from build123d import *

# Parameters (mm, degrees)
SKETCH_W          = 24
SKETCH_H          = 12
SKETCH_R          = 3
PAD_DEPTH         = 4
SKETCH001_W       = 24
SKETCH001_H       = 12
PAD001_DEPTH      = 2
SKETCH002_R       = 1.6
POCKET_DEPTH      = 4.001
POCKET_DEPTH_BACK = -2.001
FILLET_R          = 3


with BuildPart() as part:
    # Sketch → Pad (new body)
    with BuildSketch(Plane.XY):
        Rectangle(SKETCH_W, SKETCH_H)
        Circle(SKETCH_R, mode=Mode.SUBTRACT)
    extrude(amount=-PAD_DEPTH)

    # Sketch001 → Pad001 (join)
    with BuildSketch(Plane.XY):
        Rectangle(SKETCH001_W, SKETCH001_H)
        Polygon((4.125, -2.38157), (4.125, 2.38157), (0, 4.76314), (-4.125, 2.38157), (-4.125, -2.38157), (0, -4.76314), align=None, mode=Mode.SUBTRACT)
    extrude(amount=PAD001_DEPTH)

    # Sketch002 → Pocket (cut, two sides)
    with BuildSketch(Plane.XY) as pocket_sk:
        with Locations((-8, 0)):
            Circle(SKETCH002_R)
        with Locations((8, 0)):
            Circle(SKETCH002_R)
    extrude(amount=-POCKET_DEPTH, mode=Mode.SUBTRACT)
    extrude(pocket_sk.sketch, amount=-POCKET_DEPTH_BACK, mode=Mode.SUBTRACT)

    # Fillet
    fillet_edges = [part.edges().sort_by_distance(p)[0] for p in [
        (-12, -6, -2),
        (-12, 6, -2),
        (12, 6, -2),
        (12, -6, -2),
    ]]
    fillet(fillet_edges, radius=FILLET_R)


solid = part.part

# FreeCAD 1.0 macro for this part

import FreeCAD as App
import Part
import Sketcher
from FreeCAD import Vector
Q = App.Units.Quantity


def edges_at(feature, points):
    """Names of the edges that pass closest to the given points."""
    edges = feature.Shape.Edges
    near = lambda p: min(range(len(edges)), key=lambda i: edges[i].distToShape(Part.Vertex(*p))[0])
    return sorted({f"Edge{near(p) + 1}" for p in points})

doc = App.newDocument("Part")
body = doc.addObject("PartDesign::Body", "Body")

sketch1 = body.newObject("Sketcher::SketchObject", "Sketch")
sketch1.AttachmentSupport = (doc.getObject("XY_Plane"), [""])
sketch1.MapMode = "FlatFace"
sketch1.addGeometry(Part.LineSegment(Vector(-12, 6, 0), Vector(-12, -6, 0)), False)
sketch1.addGeometry(Part.LineSegment(Vector(-12, -6, 0), Vector(12, -6, 0)), False)
sketch1.addGeometry(Part.LineSegment(Vector(12, -6, 0), Vector(12, 6, 0)), False)
sketch1.addGeometry(Part.LineSegment(Vector(12, 6, 0), Vector(-12, 6, 0)), False)
sketch1.addGeometry(Part.Circle(Vector(0, 0, 0), Vector(0, 0, 1), 3), False)
sketch1.addConstraint(Sketcher.Constraint("Coincident", 0, 2, 1, 1))
sketch1.addConstraint(Sketcher.Constraint("Coincident", 1, 2, 2, 1))
sketch1.addConstraint(Sketcher.Constraint("Coincident", 2, 2, 3, 1))
sketch1.addConstraint(Sketcher.Constraint("Coincident", 3, 2, 0, 1))
sketch1.addConstraint(Sketcher.Constraint("Vertical", 0))
sketch1.addConstraint(Sketcher.Constraint("Horizontal", 1))
sketch1.addConstraint(Sketcher.Constraint("Vertical", 2))
sketch1.addConstraint(Sketcher.Constraint("Horizontal", 3))
sketch1.addConstraint(Sketcher.Constraint("Coincident", 4, 3, -1, 1))
sketch1.addConstraint(Sketcher.Constraint("Symmetric", 0, 2, 2, 2, -1, 1))
sketch1.addConstraint(Sketcher.Constraint("Diameter", 4, Q("6 mm")))
sketch1.addConstraint(Sketcher.Constraint("DistanceX", 1, 1, 1, 2, Q("24 mm")))
sketch1.addConstraint(Sketcher.Constraint("DistanceY", 0, 2, 0, 1, Q("12 mm")))
pad1 = body.newObject("PartDesign::Pad", "Pad")
pad1.Profile = sketch1
pad1.Length = 4
pad1.Reversed = True

sketch2 = body.newObject("Sketcher::SketchObject", "Sketch001")
sketch2.AttachmentSupport = (doc.getObject("XY_Plane"), [""])
sketch2.MapMode = "FlatFace"
sketch2.addGeometry(Part.LineSegment(Vector(-12, 6, 0), Vector(-12, -6, 0)), False)
sketch2.addGeometry(Part.LineSegment(Vector(-12, -6, 0), Vector(12, -6, 0)), False)
sketch2.addGeometry(Part.LineSegment(Vector(12, -6, 0), Vector(12, 6, 0)), False)
sketch2.addGeometry(Part.LineSegment(Vector(12, 6, 0), Vector(-12, 6, 0)), False)
sketch2.addGeometry(Part.LineSegment(Vector(4.1, 2.4, 0), Vector(4.1, -2.4, 0)), False)
sketch2.addGeometry(Part.LineSegment(Vector(4.1, -2.4, 0), Vector(0, -4.8, 0)), False)
sketch2.addGeometry(Part.LineSegment(Vector(0, -4.8, 0), Vector(-4.1, -2.4, 0)), False)
sketch2.addGeometry(Part.LineSegment(Vector(-4.1, -2.4, 0), Vector(-4.1, 2.4, 0)), False)
sketch2.addGeometry(Part.LineSegment(Vector(-4.1, 2.4, 0), Vector(0, 4.8, 0)), False)
sketch2.addGeometry(Part.LineSegment(Vector(0, 4.8, 0), Vector(4.1, 2.4, 0)), False)
sketch2.addConstraint(Sketcher.Constraint("Coincident", 0, 2, 1, 1))
sketch2.addConstraint(Sketcher.Constraint("Coincident", 1, 2, 2, 1))
sketch2.addConstraint(Sketcher.Constraint("Coincident", 2, 2, 3, 1))
sketch2.addConstraint(Sketcher.Constraint("Coincident", 3, 2, 0, 1))
sketch2.addConstraint(Sketcher.Constraint("Coincident", 4, 2, 5, 1))
sketch2.addConstraint(Sketcher.Constraint("Coincident", 5, 2, 6, 1))
sketch2.addConstraint(Sketcher.Constraint("Coincident", 6, 2, 7, 1))
sketch2.addConstraint(Sketcher.Constraint("Coincident", 7, 2, 8, 1))
sketch2.addConstraint(Sketcher.Constraint("Coincident", 8, 2, 9, 1))
sketch2.addConstraint(Sketcher.Constraint("Coincident", 9, 2, 4, 1))
sketch2.addConstraint(Sketcher.Constraint("Vertical", 0))
sketch2.addConstraint(Sketcher.Constraint("Horizontal", 1))
sketch2.addConstraint(Sketcher.Constraint("Vertical", 2))
sketch2.addConstraint(Sketcher.Constraint("Horizontal", 3))
sketch2.addConstraint(Sketcher.Constraint("Vertical", 4))
sketch2.addConstraint(Sketcher.Constraint("Vertical", 7))
sketch2.addConstraint(Sketcher.Constraint("Symmetric", 0, 2, 2, 2, -1, 1))
sketch2.addConstraint(Sketcher.Constraint("Symmetric", 4, 2, 7, 2, -1, 1))
sketch2.addConstraint(Sketcher.Constraint("Symmetric", 5, 2, 8, 2, -1, 1))
sketch2.addConstraint(Sketcher.Constraint("PointOnObject", 5, 2, -2))
sketch2.addConstraint(Sketcher.Constraint("Parallel", 6, 9))
sketch2.addConstraint(Sketcher.Constraint("Horizontal", 4, 2, 6, 2))
sketch2.addConstraint(Sketcher.Constraint("DistanceX", 1, 1, 1, 2, Q("24 mm")))
sketch2.addConstraint(Sketcher.Constraint("DistanceY", 0, 2, 0, 1, Q("12 mm")))
sketch2.addConstraint(Sketcher.Constraint("Angle", 5, Q("-149.999999 deg")))
sketch2.addConstraint(Sketcher.Constraint("DistanceX", 6, 2, 4, 2, Q("8.25 mm")))
sketch2.addConstraint(Sketcher.Constraint("DistanceY", 4, 2, 4, 1, Q("4.76314 mm")))
pad2 = body.newObject("PartDesign::Pad", "Pad001")
pad2.Profile = sketch2
pad2.Length = 2

sketch3 = body.newObject("Sketcher::SketchObject", "Sketch002")
sketch3.AttachmentSupport = (doc.getObject("XY_Plane"), [""])
sketch3.MapMode = "FlatFace"
sketch3.addGeometry(Part.Circle(Vector(-8, 0, 0), Vector(0, 0, 1), 1.6), False)
sketch3.addGeometry(Part.Circle(Vector(8, 0, 0), Vector(0, 0, 1), 1.6), False)
sketch3.addConstraint(Sketcher.Constraint("Equal", 0, 1))
sketch3.addConstraint(Sketcher.Constraint("Symmetric", 0, 3, 1, 3, -1, 1))
sketch3.addConstraint(Sketcher.Constraint("PointOnObject", 0, 3, -1))
sketch3.addConstraint(Sketcher.Constraint("Diameter", 0, Q("3.2 mm")))
sketch3.addConstraint(Sketcher.Constraint("DistanceX", 0, 3, -1, 1, Q("8 mm")))
pocket1 = body.newObject("PartDesign::Pocket", "Pocket")
pocket1.Profile = sketch3
pocket1.Type = "ThroughAll"
pocket1.Midplane = True
doc.recompute()

fillet = body.newObject("PartDesign::Fillet", "Fillet")
fillet.Base = (pocket1, edges_at(pocket1, [
    (-12, -6, -1),
    (-12, 6, -1),
    (12, 6, -1),
    (12, -6, -1),
]))
fillet.Radius = 3

doc.recompute()
